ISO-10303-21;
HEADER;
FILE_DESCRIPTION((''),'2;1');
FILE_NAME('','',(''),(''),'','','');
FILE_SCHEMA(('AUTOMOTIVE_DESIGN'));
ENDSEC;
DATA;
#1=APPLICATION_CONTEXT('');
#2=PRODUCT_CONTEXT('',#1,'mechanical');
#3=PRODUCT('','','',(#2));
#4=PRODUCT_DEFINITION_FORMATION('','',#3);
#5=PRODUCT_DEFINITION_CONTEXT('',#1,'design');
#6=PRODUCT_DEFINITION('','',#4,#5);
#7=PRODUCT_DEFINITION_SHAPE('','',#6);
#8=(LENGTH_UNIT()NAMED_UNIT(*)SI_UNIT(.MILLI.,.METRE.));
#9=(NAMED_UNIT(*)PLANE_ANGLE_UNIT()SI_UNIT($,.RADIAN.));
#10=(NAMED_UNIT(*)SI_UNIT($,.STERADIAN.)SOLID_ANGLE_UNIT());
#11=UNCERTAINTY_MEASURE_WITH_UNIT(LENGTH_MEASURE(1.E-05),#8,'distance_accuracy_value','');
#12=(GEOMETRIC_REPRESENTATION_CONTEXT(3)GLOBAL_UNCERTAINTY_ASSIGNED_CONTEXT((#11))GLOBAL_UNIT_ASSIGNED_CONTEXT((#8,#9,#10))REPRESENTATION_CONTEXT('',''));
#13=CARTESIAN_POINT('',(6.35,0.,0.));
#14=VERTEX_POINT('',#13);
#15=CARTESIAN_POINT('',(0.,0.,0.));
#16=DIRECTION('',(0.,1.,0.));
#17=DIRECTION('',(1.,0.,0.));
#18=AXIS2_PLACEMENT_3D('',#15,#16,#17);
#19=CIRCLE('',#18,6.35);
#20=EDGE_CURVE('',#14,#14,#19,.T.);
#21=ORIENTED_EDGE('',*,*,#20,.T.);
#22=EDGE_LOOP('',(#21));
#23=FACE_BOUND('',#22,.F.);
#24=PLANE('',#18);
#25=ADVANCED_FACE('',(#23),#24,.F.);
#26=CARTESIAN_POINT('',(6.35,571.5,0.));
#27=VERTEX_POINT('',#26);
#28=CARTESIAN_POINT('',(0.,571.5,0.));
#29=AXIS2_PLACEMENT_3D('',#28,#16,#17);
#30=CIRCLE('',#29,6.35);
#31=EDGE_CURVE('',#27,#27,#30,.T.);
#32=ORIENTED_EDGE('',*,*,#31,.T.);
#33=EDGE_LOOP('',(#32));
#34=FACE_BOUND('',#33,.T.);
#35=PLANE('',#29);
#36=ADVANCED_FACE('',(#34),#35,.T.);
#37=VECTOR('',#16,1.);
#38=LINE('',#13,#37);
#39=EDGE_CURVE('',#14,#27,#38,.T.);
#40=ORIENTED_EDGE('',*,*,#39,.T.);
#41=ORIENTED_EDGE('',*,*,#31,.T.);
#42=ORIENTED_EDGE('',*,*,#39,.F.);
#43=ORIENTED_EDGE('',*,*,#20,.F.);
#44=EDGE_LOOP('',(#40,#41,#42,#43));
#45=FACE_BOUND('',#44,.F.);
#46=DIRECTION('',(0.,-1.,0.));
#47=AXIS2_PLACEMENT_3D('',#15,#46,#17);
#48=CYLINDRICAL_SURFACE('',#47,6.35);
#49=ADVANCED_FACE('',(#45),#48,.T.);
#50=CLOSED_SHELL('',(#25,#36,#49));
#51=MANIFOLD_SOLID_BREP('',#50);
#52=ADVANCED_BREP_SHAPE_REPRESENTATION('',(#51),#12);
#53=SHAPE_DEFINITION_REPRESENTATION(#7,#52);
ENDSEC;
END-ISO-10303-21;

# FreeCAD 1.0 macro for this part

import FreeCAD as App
import Part
import Sketcher

V = App.Vector
Q = App.Units.Quantity

doc = App.newDocument("Part")
params = doc.addObject("Spreadsheet::Sheet", "Params")
for row, (alias, value) in enumerate([
    ("sketch1_diameter", "0.5 in"),
    ("pad1_length", "22.5 in"),
], start=1):
    params.set(f"A{row}", alias)
    params.set(f"B{row}", "=" + value)
    params.setAlias(f"B{row}", alias)

body = doc.addObject("PartDesign::Body", "Body")

# Sketch on XZ plane
sketch1 = doc.addObject("Sketcher::SketchObject", "Sketch")
body.addObject(sketch1)
sketch1.AttachmentSupport = (doc.XZ_Plane, [""])
sketch1.MapMode = "FlatFace"
sketch1.addGeometry(Part.Circle(V(0, 0, 0), V(0, 0, 1), 6.35), False)
sketch1.addConstraint([
    Sketcher.Constraint("Coincident", 0, 3, -1, 1),
    Sketcher.Constraint("Diameter", 0, Q("0.5 in")),
])
sketch1.setExpression("Constraints[1]", "Params.sketch1_diameter")
pad1 = doc.addObject("PartDesign::Pad", "Pad")
body.addObject(pad1)
pad1.Profile = sketch1
pad1.setExpression("Length", "Params.pad1_length")
pad1.Reversed = True

doc.recompute()
